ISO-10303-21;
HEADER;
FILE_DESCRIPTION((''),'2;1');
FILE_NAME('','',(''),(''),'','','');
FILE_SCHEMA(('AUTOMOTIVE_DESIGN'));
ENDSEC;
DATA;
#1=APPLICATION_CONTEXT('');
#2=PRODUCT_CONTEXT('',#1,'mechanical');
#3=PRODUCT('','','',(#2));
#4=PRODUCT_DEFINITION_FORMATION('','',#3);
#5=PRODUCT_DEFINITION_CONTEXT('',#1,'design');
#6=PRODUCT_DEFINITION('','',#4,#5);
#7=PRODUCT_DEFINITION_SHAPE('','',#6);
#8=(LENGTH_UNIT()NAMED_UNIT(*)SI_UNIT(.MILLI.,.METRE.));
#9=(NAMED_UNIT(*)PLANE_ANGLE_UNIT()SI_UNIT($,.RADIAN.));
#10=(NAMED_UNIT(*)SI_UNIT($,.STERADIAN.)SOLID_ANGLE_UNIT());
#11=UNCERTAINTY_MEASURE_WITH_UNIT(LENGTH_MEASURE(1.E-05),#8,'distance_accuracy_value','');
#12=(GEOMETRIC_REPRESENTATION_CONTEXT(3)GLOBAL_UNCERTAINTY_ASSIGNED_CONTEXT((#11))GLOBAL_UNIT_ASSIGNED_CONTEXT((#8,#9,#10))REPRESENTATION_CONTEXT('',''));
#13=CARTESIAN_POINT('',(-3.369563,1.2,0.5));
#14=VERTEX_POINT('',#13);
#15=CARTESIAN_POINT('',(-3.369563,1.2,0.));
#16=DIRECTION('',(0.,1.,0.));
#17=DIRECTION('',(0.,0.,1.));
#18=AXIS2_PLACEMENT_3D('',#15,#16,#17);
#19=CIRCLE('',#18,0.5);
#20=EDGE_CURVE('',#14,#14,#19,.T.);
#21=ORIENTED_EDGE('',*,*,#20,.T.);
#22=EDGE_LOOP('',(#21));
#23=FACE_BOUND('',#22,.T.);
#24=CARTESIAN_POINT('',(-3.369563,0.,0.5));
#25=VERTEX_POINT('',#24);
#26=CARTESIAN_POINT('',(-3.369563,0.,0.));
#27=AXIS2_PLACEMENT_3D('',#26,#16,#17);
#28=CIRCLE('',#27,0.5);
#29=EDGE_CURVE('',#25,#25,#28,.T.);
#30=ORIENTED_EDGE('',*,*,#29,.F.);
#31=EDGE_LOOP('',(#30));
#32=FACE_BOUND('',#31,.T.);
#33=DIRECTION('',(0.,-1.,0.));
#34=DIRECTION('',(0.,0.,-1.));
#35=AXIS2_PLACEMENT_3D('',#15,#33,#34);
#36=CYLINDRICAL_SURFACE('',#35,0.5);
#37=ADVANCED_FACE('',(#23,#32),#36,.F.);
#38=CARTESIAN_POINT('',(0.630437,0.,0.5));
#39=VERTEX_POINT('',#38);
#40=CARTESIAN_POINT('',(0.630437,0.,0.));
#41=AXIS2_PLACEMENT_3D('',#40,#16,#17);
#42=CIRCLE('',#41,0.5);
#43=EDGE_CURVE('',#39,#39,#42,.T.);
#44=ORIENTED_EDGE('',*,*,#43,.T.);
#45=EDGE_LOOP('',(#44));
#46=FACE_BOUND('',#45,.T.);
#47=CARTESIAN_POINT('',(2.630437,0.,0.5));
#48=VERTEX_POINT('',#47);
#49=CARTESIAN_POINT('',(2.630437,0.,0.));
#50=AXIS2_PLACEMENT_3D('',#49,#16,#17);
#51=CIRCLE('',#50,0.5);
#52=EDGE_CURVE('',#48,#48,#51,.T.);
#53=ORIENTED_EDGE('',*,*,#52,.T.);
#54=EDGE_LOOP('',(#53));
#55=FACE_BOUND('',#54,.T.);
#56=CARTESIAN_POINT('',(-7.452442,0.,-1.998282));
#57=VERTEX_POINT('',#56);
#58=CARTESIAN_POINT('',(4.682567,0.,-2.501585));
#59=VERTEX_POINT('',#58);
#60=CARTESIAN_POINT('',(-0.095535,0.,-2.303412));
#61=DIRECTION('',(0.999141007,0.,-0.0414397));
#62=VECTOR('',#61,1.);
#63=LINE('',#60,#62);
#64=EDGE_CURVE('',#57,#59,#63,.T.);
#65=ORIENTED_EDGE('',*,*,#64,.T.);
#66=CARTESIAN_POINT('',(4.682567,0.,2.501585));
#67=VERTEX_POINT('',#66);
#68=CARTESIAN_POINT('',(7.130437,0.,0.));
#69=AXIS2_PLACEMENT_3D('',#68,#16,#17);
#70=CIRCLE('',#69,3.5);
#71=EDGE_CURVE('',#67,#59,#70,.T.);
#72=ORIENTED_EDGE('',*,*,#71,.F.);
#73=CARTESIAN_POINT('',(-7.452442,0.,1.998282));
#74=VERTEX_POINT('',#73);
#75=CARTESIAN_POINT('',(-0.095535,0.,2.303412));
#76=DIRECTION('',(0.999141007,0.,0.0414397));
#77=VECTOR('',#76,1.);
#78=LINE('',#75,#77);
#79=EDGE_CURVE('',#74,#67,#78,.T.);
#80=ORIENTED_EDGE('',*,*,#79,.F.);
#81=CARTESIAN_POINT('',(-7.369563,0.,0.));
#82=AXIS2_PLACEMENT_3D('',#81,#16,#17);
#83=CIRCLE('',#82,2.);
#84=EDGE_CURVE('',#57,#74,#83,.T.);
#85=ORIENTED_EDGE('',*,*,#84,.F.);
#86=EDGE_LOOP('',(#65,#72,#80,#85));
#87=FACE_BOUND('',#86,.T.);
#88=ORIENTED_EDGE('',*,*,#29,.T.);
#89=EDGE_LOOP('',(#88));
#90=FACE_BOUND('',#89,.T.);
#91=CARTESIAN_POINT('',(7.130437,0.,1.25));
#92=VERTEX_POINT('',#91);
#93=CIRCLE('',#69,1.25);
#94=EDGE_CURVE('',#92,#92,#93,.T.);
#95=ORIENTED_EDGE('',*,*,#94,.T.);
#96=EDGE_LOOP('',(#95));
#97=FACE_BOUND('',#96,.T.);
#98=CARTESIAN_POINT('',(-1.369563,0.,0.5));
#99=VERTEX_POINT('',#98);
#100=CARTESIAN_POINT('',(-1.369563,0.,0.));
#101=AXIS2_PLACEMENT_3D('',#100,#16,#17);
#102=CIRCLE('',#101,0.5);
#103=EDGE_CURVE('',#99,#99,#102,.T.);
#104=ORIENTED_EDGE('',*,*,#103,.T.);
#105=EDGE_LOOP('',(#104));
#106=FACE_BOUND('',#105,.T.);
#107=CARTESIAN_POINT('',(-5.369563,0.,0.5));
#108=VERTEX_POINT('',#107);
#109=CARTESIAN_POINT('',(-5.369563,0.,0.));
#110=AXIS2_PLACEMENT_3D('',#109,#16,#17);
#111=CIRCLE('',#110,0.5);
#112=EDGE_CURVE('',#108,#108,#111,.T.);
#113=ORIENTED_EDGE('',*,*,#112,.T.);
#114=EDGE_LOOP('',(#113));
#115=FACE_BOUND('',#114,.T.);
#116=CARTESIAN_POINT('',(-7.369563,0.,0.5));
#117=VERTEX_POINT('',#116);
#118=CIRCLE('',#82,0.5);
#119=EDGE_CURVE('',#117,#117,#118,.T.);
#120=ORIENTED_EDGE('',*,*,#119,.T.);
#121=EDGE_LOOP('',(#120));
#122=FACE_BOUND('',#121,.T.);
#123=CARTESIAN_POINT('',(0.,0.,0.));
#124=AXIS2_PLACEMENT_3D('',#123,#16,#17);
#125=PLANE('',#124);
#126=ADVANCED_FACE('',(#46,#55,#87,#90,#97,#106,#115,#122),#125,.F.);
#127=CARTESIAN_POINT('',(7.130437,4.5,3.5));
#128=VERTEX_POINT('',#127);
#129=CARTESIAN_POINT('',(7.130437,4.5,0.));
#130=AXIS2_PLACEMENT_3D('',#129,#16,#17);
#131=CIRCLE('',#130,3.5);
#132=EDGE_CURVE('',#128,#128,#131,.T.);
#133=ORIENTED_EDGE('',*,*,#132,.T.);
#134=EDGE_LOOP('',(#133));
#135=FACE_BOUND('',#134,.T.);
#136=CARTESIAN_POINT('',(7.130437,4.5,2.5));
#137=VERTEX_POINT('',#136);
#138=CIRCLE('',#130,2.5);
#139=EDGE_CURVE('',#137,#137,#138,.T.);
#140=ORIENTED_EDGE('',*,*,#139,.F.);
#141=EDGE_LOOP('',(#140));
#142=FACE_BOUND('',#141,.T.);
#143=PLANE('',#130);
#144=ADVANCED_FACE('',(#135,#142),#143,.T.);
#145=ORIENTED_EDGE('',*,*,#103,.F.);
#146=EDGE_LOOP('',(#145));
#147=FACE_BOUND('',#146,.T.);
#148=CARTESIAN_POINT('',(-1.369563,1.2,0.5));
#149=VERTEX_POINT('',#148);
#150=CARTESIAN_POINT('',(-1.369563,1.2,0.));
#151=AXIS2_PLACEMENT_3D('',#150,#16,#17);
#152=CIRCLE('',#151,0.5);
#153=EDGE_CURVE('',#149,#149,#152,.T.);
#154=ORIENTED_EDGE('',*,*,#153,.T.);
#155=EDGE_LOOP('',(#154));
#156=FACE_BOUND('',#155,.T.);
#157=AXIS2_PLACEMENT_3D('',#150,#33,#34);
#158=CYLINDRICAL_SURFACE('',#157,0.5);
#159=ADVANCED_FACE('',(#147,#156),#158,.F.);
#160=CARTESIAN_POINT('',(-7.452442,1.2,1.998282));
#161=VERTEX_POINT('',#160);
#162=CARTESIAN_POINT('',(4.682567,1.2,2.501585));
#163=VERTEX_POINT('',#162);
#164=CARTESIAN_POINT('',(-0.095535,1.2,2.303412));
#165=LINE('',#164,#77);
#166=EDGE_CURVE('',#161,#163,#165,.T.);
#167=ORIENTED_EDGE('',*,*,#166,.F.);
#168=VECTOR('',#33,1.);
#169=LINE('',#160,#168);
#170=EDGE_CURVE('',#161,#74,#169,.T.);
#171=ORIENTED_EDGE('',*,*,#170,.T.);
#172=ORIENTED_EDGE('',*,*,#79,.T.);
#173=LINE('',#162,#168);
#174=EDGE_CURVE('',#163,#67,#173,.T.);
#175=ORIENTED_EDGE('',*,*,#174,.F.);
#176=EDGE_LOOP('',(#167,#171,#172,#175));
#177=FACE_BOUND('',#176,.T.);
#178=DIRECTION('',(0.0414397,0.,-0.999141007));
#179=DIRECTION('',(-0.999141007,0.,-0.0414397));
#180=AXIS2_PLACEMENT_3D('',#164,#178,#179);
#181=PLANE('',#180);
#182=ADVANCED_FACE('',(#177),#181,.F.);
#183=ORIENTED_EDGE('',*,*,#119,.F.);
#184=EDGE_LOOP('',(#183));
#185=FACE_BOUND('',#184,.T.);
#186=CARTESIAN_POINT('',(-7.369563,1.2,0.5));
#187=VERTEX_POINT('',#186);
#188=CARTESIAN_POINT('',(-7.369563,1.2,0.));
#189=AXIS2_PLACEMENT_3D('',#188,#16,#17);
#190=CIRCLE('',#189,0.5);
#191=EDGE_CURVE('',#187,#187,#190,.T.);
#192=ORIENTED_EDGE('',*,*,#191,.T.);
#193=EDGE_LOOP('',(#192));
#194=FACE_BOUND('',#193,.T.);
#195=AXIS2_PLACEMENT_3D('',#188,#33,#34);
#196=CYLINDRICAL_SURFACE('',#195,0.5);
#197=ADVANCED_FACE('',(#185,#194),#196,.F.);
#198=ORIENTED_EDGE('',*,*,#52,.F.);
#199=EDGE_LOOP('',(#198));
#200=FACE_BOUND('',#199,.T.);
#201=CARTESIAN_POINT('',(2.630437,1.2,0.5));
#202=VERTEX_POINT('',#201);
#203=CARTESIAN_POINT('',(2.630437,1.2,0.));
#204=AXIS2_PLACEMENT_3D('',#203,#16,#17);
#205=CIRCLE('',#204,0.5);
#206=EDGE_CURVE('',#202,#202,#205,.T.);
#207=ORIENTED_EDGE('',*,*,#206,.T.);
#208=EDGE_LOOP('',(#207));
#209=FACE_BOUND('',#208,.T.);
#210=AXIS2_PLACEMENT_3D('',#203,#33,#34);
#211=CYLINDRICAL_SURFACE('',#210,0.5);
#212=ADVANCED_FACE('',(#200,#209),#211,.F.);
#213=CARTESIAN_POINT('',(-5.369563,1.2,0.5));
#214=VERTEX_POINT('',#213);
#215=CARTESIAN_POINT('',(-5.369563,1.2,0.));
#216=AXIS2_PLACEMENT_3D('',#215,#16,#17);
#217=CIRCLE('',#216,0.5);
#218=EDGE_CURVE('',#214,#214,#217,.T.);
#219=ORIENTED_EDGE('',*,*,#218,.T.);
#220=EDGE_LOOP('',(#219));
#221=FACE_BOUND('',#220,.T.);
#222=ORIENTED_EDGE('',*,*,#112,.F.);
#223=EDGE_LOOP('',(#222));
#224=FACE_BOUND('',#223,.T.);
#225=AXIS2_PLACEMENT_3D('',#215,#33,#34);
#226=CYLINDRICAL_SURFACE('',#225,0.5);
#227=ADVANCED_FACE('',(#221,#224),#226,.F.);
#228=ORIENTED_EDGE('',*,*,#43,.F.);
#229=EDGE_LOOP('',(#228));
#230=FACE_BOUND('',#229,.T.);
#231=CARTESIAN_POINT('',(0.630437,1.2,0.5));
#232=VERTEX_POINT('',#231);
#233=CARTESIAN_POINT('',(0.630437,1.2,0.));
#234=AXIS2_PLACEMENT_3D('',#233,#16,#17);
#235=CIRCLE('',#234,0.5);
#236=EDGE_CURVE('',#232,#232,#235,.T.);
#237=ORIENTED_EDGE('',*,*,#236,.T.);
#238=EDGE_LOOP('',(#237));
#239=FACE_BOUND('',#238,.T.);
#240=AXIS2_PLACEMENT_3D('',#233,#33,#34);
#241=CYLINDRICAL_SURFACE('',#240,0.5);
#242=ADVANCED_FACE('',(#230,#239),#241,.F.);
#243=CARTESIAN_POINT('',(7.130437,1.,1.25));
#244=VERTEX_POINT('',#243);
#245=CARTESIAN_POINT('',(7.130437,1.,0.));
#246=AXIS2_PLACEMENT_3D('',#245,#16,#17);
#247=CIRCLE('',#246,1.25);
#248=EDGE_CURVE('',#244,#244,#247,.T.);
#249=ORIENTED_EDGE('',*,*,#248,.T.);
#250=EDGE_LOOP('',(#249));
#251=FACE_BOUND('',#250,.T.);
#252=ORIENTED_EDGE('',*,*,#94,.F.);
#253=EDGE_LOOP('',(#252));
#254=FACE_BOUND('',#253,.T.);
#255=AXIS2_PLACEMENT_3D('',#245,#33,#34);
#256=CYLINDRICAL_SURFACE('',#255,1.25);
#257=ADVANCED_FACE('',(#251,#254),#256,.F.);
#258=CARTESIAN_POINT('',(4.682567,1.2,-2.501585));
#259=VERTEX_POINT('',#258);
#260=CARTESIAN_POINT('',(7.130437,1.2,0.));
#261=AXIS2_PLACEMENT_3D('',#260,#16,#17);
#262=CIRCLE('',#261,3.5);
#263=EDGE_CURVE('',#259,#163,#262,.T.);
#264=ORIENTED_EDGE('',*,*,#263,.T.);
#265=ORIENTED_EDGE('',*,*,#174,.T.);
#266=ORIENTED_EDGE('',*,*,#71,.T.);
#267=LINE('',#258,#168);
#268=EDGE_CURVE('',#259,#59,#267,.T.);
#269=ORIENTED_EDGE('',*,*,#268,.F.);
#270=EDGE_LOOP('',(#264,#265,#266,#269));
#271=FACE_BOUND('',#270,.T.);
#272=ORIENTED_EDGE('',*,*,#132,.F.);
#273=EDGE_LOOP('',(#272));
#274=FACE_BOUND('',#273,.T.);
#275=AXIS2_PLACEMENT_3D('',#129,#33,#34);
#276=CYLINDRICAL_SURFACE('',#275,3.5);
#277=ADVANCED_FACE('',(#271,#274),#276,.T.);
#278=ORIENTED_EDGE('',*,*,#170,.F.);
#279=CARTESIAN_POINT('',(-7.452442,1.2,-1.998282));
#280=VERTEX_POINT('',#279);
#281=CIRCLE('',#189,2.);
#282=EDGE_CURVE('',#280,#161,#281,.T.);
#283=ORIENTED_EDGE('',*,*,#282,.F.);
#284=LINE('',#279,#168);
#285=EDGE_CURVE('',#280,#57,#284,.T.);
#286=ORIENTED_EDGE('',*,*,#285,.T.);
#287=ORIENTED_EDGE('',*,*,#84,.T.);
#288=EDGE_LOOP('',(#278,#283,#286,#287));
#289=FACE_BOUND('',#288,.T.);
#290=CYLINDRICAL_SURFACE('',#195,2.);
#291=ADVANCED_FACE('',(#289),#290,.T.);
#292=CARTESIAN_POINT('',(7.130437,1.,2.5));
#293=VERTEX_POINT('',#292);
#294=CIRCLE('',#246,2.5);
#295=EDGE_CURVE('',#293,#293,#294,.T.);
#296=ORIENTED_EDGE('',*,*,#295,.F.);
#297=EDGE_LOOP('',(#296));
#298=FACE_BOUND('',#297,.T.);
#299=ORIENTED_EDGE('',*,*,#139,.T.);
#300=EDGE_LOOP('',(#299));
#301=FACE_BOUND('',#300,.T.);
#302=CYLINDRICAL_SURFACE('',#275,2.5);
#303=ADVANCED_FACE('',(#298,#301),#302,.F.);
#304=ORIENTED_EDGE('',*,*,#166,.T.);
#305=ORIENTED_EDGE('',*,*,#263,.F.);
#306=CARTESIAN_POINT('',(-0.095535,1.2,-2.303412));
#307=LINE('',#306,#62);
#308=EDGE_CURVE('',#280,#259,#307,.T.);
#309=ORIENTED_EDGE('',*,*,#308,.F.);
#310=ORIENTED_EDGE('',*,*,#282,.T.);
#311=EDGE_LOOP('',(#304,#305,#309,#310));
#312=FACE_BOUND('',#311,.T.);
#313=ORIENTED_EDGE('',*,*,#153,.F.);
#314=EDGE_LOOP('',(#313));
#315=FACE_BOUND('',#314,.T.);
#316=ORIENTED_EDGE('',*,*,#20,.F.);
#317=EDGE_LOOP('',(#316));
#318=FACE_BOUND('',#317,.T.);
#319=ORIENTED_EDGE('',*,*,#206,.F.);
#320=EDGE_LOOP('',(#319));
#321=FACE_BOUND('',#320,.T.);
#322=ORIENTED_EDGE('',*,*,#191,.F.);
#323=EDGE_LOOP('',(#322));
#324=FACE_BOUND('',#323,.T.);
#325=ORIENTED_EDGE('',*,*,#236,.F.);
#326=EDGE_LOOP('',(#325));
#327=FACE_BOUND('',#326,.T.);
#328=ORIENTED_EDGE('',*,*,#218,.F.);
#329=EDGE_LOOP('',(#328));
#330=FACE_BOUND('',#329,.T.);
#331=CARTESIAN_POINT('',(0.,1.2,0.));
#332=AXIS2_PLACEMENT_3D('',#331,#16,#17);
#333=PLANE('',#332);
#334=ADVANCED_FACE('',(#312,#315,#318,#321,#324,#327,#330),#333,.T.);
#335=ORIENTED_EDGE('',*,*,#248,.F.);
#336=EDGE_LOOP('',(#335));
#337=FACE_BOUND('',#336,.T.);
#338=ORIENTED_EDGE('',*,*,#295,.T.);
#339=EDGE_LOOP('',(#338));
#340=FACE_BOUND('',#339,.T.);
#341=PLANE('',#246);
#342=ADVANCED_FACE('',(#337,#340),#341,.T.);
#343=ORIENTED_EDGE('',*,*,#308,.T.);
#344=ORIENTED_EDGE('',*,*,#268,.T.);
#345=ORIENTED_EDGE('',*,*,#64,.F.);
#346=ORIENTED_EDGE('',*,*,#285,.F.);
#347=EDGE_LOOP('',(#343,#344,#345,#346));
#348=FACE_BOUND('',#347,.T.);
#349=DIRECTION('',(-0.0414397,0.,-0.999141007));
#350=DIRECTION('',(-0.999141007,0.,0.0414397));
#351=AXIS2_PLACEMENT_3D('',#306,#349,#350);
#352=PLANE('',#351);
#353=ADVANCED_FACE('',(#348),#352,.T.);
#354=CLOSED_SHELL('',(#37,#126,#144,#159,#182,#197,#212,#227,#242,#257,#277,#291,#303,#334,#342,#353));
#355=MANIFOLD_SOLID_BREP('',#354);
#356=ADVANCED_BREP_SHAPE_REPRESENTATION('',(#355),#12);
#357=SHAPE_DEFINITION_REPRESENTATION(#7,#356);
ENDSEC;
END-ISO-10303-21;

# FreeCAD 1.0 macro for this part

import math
import FreeCAD as App
import Part
import Sketcher
Q = App.Units.Quantity

doc = App.newDocument("Part")
body = doc.addObject("PartDesign::Body", "Body")

# Sketch on XZ plane
sketch1 = body.newObject("Sketcher::SketchObject", "Sketch")
sketch1.AttachmentSupport = (doc.getObject("XZ_Plane"), [""])
sketch1.MapMode = "FlatFace"
sketch1.addGeometry(Part.LineSegment(App.Vector(4.682567, -2.501585, 0), App.Vector(-7.452442, -1.998282, 0)), False)
sketch1.addGeometry(Part.ArcOfCircle(Part.Circle(App.Vector(-7.369563, 0, 0), App.Vector(0, 0, 1), 2), math.radians(92.375), math.radians(267.625)), False)
sketch1.addGeometry(Part.LineSegment(App.Vector(-7.452442, 1.998282, 0), App.Vector(4.682567, 2.501585, 0)), False)
sketch1.addGeometry(Part.ArcOfCircle(Part.Circle(App.Vector(7.130437, 0, 0), App.Vector(0, 0, 1), 3.5), math.radians(134.378211), math.radians(225.621789)), False)
sketch1.addGeometry(Part.Circle(App.Vector(-7.369563, 0, 0), App.Vector(0, 0, 1), 0.5), False)
sketch1.addGeometry(Part.Circle(App.Vector(-5.369563, 0, 0), App.Vector(0, 0, 1), 0.5), False)
sketch1.addGeometry(Part.Circle(App.Vector(-3.369563, 0, 0), App.Vector(0, 0, 1), 0.5), False)
sketch1.addGeometry(Part.Circle(App.Vector(-1.369563, 0, 0), App.Vector(0, 0, 1), 0.5), False)
sketch1.addGeometry(Part.Circle(App.Vector(0.630437, 0, 0), App.Vector(0, 0, 1), 0.5), False)
sketch1.addGeometry(Part.Circle(App.Vector(2.630437, 0, 0), App.Vector(0, 0, 1), 0.5), False)
sketch1.addConstraint(Sketcher.Constraint("Tangent", 0, 2, 1, 2))
sketch1.addConstraint(Sketcher.Constraint("Tangent", 1, 1, 2, 1))
sketch1.addConstraint(Sketcher.Constraint("Coincident", 2, 2, 3, 1))
sketch1.addConstraint(Sketcher.Constraint("Coincident", 3, 2, 0, 1))
sketch1.addConstraint(Sketcher.Constraint("Coincident", 4, 3, 1, 3))
sketch1.addConstraint(Sketcher.Constraint("Equal", 4, 5))
sketch1.addConstraint(Sketcher.Constraint("Equal", 5, 6))
sketch1.addConstraint(Sketcher.Constraint("Equal", 6, 7))
sketch1.addConstraint(Sketcher.Constraint("Equal", 7, 8))
sketch1.addConstraint(Sketcher.Constraint("Equal", 8, 9))
sketch1.addConstraint(Sketcher.Constraint("Symmetric", 0, 2, 1, 1, -1))
sketch1.addConstraint(Sketcher.Constraint("PointOnObject", 3, 3, -1))
sketch1.addConstraint(Sketcher.Constraint("PointOnObject", 5, 3, -1))
sketch1.addConstraint(Sketcher.Constraint("PointOnObject", 6, 3, -1))
sketch1.addConstraint(Sketcher.Constraint("PointOnObject", 7, 3, -1))
sketch1.addConstraint(Sketcher.Constraint("PointOnObject", 8, 3, -1))
sketch1.addConstraint(Sketcher.Constraint("PointOnObject", 9, 3, -1))
sketch1.addConstraint(Sketcher.Constraint("Diameter", 4, Q("1 mm")))
sketch1.addConstraint(Sketcher.Constraint("Radius", 1, Q("2 mm")))
sketch1.addConstraint(Sketcher.Constraint("Radius", 3, Q("3.5 mm")))
sketch1.addConstraint(Sketcher.Constraint("DistanceX", 1, 3, 5, 3, Q("2 mm")))
sketch1.addConstraint(Sketcher.Constraint("DistanceX", 5, 3, 6, 3, Q("2 mm")))
sketch1.addConstraint(Sketcher.Constraint("DistanceX", 6, 3, 7, 3, Q("2 mm")))
sketch1.addConstraint(Sketcher.Constraint("DistanceX", 7, 3, 8, 3, Q("2 mm")))
sketch1.addConstraint(Sketcher.Constraint("DistanceX", 8, 3, 9, 3, Q("2 mm")))
sketch1.addConstraint(Sketcher.Constraint("DistanceX", 1, 3, 3, 3, Q("14.5 mm")))
sketch1.addConstraint(Sketcher.Constraint("Distance", 0, Q("12.145442 mm")))
sketch1.addConstraint(Sketcher.Constraint("DistanceX", 1, 3, -1, 1, Q("7.369563 mm")))
pad1 = body.newObject("PartDesign::Pad", "Pad")
pad1.Profile = sketch1
pad1.Length = 1.2
pad1.Reversed = True

# Sketch on XZ plane
sketch2 = body.newObject("Sketcher::SketchObject", "Sketch001")
sketch2.AttachmentSupport = (doc.getObject("XZ_Plane"), [""])
sketch2.MapMode = "FlatFace"
sketch2.addGeometry(Part.Circle(App.Vector(7.130437, 0, 0), App.Vector(0, 0, 1), 3.5), False)
sketch2.addGeometry(Part.Circle(App.Vector(7.130437, 0, 0), App.Vector(0, 0, 1), 2.5), False)
sketch2.addConstraint(Sketcher.Constraint("Coincident", 1, 3, 0, 3))
sketch2.addConstraint(Sketcher.Constraint("PointOnObject", 0, 3, -1))
sketch2.addConstraint(Sketcher.Constraint("Diameter", 0, Q("7 mm")))
sketch2.addConstraint(Sketcher.Constraint("Diameter", 1, Q("5 mm")))
sketch2.addConstraint(Sketcher.Constraint("DistanceX", -1, 1, 0, 3, Q("7.130437 mm")))
pad2 = body.newObject("PartDesign::Pad", "Pad001")
pad2.Profile = sketch2
pad2.Length = 4.5
pad2.Reversed = True

# Sketch on XZ plane
sketch3 = body.newObject("Sketcher::SketchObject", "Sketch002")
sketch3.AttachmentSupport = (doc.getObject("XZ_Plane"), [""])
sketch3.MapMode = "FlatFace"
sketch3.addGeometry(Part.Circle(App.Vector(7.130437, 0, 0), App.Vector(0, 0, 1), 2.5), False)
sketch3.addConstraint(Sketcher.Constraint("PointOnObject", 0, 3, -1))
sketch3.addConstraint(Sketcher.Constraint("Diameter", 0, Q("5 mm")))
sketch3.addConstraint(Sketcher.Constraint("DistanceX", -1, 1, 0, 3, Q("7.130437 mm")))
pad3 = body.newObject("PartDesign::Pad", "Pad002")
pad3.Profile = sketch3
pad3.Length = 1
pad3.Reversed = True

# Sketch on XZ plane
sketch4 = body.newObject("Sketcher::SketchObject", "Sketch003")
sketch4.AttachmentSupport = (doc.getObject("XZ_Plane"), [""])
sketch4.MapMode = "FlatFace"
sketch4.addGeometry(Part.Circle(App.Vector(7.130437, 0, 0), App.Vector(0, 0, 1), 1.25), False)
sketch4.addConstraint(Sketcher.Constraint("PointOnObject", 0, 3, -1))
sketch4.addConstraint(Sketcher.Constraint("Diameter", 0, Q("2.5 mm")))
sketch4.addConstraint(Sketcher.Constraint("DistanceX", -1, 1, 0, 3, Q("7.130437 mm")))
pocket1 = body.newObject("PartDesign::Pocket", "Pocket")
pocket1.Profile = sketch4
pocket1.Length = 1

doc.recompute()
